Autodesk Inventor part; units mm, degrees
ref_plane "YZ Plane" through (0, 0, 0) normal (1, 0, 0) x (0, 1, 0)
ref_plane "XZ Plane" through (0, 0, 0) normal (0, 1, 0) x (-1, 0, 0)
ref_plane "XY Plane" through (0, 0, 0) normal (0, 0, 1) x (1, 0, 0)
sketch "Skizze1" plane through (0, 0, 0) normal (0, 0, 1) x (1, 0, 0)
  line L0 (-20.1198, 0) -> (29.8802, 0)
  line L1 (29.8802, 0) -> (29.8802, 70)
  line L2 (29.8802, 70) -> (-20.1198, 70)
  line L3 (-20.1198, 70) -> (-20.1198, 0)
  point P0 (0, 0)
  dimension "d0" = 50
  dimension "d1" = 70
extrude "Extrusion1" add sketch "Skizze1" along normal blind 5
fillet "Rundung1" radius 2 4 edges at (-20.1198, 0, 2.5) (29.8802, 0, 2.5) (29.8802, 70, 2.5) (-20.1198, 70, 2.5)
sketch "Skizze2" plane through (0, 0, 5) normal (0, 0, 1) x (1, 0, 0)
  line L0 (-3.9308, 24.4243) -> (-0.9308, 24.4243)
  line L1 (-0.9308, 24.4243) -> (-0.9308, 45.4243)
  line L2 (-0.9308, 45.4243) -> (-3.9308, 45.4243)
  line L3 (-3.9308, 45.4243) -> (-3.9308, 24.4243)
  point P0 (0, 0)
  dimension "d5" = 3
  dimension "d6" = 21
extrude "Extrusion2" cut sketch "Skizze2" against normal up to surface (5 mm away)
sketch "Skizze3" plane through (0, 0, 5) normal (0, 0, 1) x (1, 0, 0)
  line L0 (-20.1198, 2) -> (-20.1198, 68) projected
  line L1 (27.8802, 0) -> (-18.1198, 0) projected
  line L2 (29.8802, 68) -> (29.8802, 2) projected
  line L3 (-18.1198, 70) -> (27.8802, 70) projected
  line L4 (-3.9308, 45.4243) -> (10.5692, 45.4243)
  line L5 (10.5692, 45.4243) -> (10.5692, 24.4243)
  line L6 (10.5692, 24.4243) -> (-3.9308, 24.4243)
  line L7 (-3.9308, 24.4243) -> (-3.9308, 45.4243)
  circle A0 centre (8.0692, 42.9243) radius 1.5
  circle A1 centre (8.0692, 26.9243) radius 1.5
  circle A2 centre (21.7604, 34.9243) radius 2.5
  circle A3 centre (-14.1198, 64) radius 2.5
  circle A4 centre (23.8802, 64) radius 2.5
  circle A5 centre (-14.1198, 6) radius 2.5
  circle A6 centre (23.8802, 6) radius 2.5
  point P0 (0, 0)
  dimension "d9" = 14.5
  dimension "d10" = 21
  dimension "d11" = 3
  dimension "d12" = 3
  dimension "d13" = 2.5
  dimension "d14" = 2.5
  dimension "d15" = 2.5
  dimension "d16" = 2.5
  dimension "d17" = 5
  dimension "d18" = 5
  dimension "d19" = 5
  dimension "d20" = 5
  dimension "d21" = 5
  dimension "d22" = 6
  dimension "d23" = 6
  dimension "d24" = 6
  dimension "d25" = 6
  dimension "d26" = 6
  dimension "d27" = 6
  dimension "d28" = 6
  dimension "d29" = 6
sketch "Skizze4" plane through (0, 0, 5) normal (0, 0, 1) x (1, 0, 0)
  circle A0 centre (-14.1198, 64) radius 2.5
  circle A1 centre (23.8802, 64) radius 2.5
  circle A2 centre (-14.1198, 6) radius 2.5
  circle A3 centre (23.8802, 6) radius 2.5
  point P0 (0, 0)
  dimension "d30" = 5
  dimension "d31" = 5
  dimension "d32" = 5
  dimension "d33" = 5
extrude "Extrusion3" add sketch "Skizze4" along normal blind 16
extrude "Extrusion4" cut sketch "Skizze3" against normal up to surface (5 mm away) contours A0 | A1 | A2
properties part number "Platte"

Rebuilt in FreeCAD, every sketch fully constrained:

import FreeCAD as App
import Part
import Sketcher
Q = App.Units.Quantity


def edges_at(feature, points):
    """Names of the edges that pass closest to the given points."""
    edges = feature.Shape.Edges
    near = lambda p: min(range(len(edges)), key=lambda i: edges[i].distToShape(Part.Vertex(*p))[0])
    return sorted({f"Edge{near(p) + 1}" for p in points})


def add_polygon(sketch, points):
    """Adds a closed chain of lines whose ends are joined by coincident constraints."""
    first, n = sketch.GeometryCount, len(points)
    for a, b in zip(points, points[1:] + points[:1]):
        sketch.addGeometry(Part.LineSegment(App.Vector(*a, 0), App.Vector(*b, 0)), False)
    for i in range(n):
        sketch.addConstraint(Sketcher.Constraint("Coincident", first + i, 2, first + (i + 1) % n, 1))

doc = App.newDocument("Part")
body = doc.addObject("PartDesign::Body", "Body")

# Sketch on XY plane
sketch1 = doc.addObject("Sketcher::SketchObject", "Sketch")
body.addObject(sketch1)
sketch1.AttachmentSupport = (doc.XY_Plane, [""])
sketch1.MapMode = "FlatFace"
add_polygon(sketch1, [(-20, 70), (-20, 0), (30, 0), (30, 70)])  # lines 0-3
sketch1.addConstraint(Sketcher.Constraint("Vertical", 0))
sketch1.addConstraint(Sketcher.Constraint("Horizontal", 1))
sketch1.addConstraint(Sketcher.Constraint("Vertical", 2))
sketch1.addConstraint(Sketcher.Constraint("Horizontal", 3))
sketch1.addConstraint(Sketcher.Constraint("PointOnObject", 0, 2, -1))
sketch1.addConstraint(Sketcher.Constraint("DistanceX", 1, 1, 1, 2, Q("50 mm")))
sketch1.addConstraint(Sketcher.Constraint("DistanceY", 0, 2, 0, 1, Q("70 mm")))
sketch1.addConstraint(Sketcher.Constraint("DistanceX", 0, 2, -1, 1, Q("20.1198 mm")))
pad1 = doc.addObject("PartDesign::Pad", "Pad")
body.addObject(pad1)
pad1.Profile = sketch1
pad1.Length = 5
doc.recompute()

fillet = doc.addObject("PartDesign::Fillet", "Fillet")
body.addObject(fillet)
fillet.Base = (pad1, edges_at(pad1, [
    (-20.12, 0, 2.5),
    (29.88, 0, 2.5),
    (29.88, 70, 2.5),
    (-20.12, 70, 2.5),
]))
fillet.Radius = 2

# Sketch on XY plane
sketch2 = doc.addObject("Sketcher::SketchObject", "Sketch001")
body.addObject(sketch2)
sketch2.AttachmentSupport = (doc.XY_Plane, [""])
sketch2.MapMode = "FlatFace"
sketch2.AttachmentOffset = App.Placement(App.Vector(0, 0, 5), App.Rotation())
add_polygon(sketch2, [(-3.9, 45.4), (-3.9, 24.4), (-0.9, 24.4), (-0.9, 45.4)])  # lines 0-3
sketch2.addConstraint(Sketcher.Constraint("Vertical", 0))
sketch2.addConstraint(Sketcher.Constraint("Horizontal", 1))
sketch2.addConstraint(Sketcher.Constraint("Vertical", 2))
sketch2.addConstraint(Sketcher.Constraint("Horizontal", 3))
sketch2.addConstraint(Sketcher.Constraint("DistanceX", 1, 1, 1, 2, Q("3 mm")))
sketch2.addConstraint(Sketcher.Constraint("DistanceY", 0, 2, 0, 1, Q("21 mm")))
sketch2.addConstraint(Sketcher.Constraint("DistanceX", 0, 2, -1, 1, Q("3.9308 mm")))
sketch2.addConstraint(Sketcher.Constraint("DistanceY", -1, 1, 0, 2, Q("24.4243 mm")))
pocket1 = doc.addObject("PartDesign::Pocket", "Pocket")
body.addObject(pocket1)
pocket1.Profile = sketch2
pocket1.Length = 5

# Sketch on XY plane
sketch3 = doc.addObject("Sketcher::SketchObject", "Sketch002")
body.addObject(sketch3)
sketch3.AttachmentSupport = (doc.XY_Plane, [""])
sketch3.MapMode = "FlatFace"
sketch3.AttachmentOffset = App.Placement(App.Vector(0, 0, 5), App.Rotation())
sketch3.addGeometry(Part.Circle(App.Vector(-14.1, 64, 0), App.Vector(0, 0, 1), 2.5), False)
sketch3.addGeometry(Part.Circle(App.Vector(23.9, 64, 0), App.Vector(0, 0, 1), 2.5), False)
sketch3.addGeometry(Part.Circle(App.Vector(-14.1, 6, 0), App.Vector(0, 0, 1), 2.5), False)
sketch3.addGeometry(Part.Circle(App.Vector(23.9, 6, 0), App.Vector(0, 0, 1), 2.5), False)
sketch3.addConstraint(Sketcher.Constraint("Equal", 0, 1))
sketch3.addConstraint(Sketcher.Constraint("Equal", 1, 2))
sketch3.addConstraint(Sketcher.Constraint("Equal", 2, 3))
sketch3.addConstraint(Sketcher.Constraint("Horizontal", 0, 3, 1, 3))
sketch3.addConstraint(Sketcher.Constraint("Horizontal", 2, 3, 3, 3))
sketch3.addConstraint(Sketcher.Constraint("Vertical", 0, 3, 2, 3))
sketch3.addConstraint(Sketcher.Constraint("Vertical", 1, 3, 3, 3))
sketch3.addConstraint(Sketcher.Constraint("Diameter", 0, Q("5 mm")))
sketch3.addConstraint(Sketcher.Constraint("DistanceY", -1, 1, 0, 3, Q("64 mm")))
sketch3.addConstraint(Sketcher.Constraint("DistanceY", -1, 1, 2, 3, Q("6 mm")))
sketch3.addConstraint(Sketcher.Constraint("DistanceX", 0, 3, 1, 3, Q("38 mm")))
sketch3.addConstraint(Sketcher.Constraint("DistanceX", 0, 3, -1, 1, Q("14.1198 mm")))
pad2 = doc.addObject("PartDesign::Pad", "Pad001")
body.addObject(pad2)
pad2.Profile = sketch3
pad2.Length = 16

# Sketch on XY plane
sketch4 = doc.addObject("Sketcher::SketchObject", "Sketch003")
body.addObject(sketch4)
sketch4.AttachmentSupport = (doc.XY_Plane, [""])
sketch4.MapMode = "FlatFace"
sketch4.AttachmentOffset = App.Placement(App.Vector(0, 0, 5), App.Rotation())
sketch4.addGeometry(Part.Circle(App.Vector(8.1, 42.9, 0), App.Vector(0, 0, 1), 1.5), False)
sketch4.addGeometry(Part.Circle(App.Vector(8.1, 26.9, 0), App.Vector(0, 0, 1), 1.5), False)
sketch4.addGeometry(Part.Circle(App.Vector(21.8, 34.9, 0), App.Vector(0, 0, 1), 2.5), False)
sketch4.addConstraint(Sketcher.Constraint("Equal", 0, 1))
sketch4.addConstraint(Sketcher.Constraint("Vertical", 0, 3, 1, 3))
sketch4.addConstraint(Sketcher.Constraint("Diameter", 0, Q("3 mm")))
sketch4.addConstraint(Sketcher.Constraint("Diameter", 2, Q("5 mm")))
sketch4.addConstraint(Sketcher.Constraint("DistanceY", 1, 3, 0, 3, Q("16 mm")))
sketch4.addConstraint(Sketcher.Constraint("DistanceY", 2, 3, 0, 3, Q("8 mm")))
sketch4.addConstraint(Sketcher.Constraint("DistanceX", -1, 1, 0, 3, Q("8.0692 mm")))
sketch4.addConstraint(Sketcher.Constraint("DistanceY", -1, 1, 0, 3, Q("42.9243 mm")))
sketch4.addConstraint(Sketcher.Constraint("DistanceX", -1, 1, 2, 3, Q("21.7604 mm")))
pocket2 = doc.addObject("PartDesign::Pocket", "Pocket001")
body.addObject(pocket2)
pocket2.Profile = sketch4
pocket2.Length = 5

doc.recompute()
